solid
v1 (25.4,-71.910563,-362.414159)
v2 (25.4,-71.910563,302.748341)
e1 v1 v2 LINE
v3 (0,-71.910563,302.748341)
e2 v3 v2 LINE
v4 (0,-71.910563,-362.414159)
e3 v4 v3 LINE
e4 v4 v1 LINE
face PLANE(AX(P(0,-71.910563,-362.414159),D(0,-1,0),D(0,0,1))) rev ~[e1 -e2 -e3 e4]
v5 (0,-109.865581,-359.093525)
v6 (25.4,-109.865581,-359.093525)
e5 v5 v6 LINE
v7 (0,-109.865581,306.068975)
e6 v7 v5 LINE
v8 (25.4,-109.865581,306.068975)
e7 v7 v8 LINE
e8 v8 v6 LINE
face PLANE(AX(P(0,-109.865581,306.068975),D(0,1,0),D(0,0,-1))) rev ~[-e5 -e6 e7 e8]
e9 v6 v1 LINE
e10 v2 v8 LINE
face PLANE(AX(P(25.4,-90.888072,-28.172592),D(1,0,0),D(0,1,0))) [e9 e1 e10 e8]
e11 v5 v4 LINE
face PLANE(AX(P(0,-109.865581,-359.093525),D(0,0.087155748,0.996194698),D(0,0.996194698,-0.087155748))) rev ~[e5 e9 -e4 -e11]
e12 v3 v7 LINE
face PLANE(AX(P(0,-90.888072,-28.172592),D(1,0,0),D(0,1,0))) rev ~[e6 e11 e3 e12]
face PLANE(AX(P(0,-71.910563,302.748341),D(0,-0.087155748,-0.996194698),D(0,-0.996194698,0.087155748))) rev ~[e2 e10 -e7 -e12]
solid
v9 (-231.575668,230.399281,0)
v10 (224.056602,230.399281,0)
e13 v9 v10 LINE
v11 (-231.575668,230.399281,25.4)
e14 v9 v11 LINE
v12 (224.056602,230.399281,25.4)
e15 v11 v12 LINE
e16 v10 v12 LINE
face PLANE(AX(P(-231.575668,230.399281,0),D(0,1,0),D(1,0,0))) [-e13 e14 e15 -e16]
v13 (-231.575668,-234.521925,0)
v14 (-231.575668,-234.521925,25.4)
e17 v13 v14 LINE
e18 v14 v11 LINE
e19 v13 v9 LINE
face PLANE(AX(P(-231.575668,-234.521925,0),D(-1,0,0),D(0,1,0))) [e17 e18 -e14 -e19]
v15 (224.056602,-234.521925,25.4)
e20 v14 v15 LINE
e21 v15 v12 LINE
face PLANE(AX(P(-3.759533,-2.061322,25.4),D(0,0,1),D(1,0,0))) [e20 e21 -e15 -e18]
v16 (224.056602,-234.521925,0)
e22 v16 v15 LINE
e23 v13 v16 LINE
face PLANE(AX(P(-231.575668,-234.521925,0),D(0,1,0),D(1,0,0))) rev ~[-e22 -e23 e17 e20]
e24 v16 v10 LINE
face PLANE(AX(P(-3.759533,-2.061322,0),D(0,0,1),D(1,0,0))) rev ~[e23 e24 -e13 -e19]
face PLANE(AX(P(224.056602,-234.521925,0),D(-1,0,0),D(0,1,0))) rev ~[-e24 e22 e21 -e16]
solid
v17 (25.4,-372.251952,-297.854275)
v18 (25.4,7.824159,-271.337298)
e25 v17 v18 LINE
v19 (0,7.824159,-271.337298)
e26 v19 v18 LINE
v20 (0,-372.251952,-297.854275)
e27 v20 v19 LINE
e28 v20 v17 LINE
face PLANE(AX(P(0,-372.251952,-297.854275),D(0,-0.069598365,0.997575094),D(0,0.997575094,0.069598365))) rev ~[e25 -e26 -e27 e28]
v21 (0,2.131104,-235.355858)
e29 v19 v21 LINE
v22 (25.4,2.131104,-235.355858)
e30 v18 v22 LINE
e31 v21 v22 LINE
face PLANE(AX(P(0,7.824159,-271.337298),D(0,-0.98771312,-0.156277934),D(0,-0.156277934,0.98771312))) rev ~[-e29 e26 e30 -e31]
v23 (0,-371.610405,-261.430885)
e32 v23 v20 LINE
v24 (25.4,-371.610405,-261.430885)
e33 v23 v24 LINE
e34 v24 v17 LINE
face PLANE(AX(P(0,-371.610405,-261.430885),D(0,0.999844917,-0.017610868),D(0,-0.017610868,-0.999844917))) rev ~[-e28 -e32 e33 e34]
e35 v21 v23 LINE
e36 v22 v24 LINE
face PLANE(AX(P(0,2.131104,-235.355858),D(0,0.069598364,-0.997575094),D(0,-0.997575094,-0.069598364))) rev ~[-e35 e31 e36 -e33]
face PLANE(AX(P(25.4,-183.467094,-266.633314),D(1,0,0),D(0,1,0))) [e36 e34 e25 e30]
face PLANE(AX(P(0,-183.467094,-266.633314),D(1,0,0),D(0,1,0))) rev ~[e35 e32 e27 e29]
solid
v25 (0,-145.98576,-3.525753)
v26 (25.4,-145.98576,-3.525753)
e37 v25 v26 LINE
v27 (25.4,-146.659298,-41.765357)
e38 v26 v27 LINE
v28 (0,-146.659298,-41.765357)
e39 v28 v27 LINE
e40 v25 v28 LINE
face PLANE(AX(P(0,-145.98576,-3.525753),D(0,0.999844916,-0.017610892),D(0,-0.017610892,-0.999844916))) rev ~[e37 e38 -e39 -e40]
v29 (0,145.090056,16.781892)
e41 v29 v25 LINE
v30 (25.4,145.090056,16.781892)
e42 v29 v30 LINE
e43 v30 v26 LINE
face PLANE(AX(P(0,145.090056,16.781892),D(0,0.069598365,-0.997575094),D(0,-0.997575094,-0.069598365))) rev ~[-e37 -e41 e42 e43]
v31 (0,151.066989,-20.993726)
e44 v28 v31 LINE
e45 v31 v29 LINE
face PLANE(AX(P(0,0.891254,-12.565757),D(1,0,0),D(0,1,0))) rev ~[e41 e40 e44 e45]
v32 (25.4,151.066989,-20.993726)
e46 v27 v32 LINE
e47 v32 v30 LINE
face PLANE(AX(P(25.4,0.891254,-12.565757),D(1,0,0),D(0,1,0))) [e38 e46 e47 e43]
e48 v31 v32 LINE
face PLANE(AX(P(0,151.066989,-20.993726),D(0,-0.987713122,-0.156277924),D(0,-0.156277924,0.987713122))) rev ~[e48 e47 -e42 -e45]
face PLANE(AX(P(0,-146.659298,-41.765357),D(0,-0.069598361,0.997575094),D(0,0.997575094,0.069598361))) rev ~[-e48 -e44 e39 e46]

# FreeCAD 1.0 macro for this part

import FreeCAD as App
import Part
import Sketcher

V = App.Vector
Q = App.Units.Quantity

doc = App.newDocument("Part")
body = doc.addObject("PartDesign::Body", "Body")

# Sketch on YZ plane
sketch1 = doc.addObject("Sketcher::SketchObject", "Sketch")
body.addObject(sketch1)
sketch1.AttachmentSupport = (doc.YZ_Plane, [""])
sketch1.MapMode = "FlatFace"
sketch1.addGeometry([
    Part.LineSegment(V(-72, 303, 0), V(-110, 306, 0)),
    Part.LineSegment(V(-110, 306, 0), V(-110, -359, 0)),
    Part.LineSegment(V(-110, -359, 0), V(-72, -362, 0)),
    Part.LineSegment(V(-72, -362, 0), V(-72, 303, 0)),
], False)
sketch1.addConstraint([
    Sketcher.Constraint("Coincident", 0, 2, 1, 1),
    Sketcher.Constraint("Coincident", 1, 2, 2, 1),
    Sketcher.Constraint("Coincident", 2, 2, 3, 1),
    Sketcher.Constraint("Coincident", 3, 2, 0, 1),
    Sketcher.Constraint("Vertical", 1),
    Sketcher.Constraint("Vertical", 3),
    Sketcher.Constraint("Parallel", 0, 2),
    Sketcher.Constraint("Angle", 0, Q("175 deg")),
    Sketcher.Constraint("Distance", 0, Q("1.5 in")),
    Sketcher.Constraint("DistanceY", 1, 2, 1, 1, Q("26.1875 in")),
    Sketcher.Constraint("DistanceX", 0, 2, -1, 1, Q("109.865581 mm")),
    Sketcher.Constraint("DistanceY", 2, 2, -1, 1, Q("362.414159 mm")),
])
pad1 = doc.addObject("PartDesign::Pad", "Pad")
body.addObject(pad1)
pad1.Profile = sketch1
pad1.Length = Q("1 in")
body2 = doc.addObject("PartDesign::Body", "Body001")

# Sketch on XY plane
sketch2 = doc.addObject("Sketcher::SketchObject", "Sketch001")
body2.addObject(sketch2)
sketch2.AttachmentSupport = (doc.getObject("XY_Plane001"), [""])
sketch2.MapMode = "FlatFace"
sketch2.addGeometry([
    Part.LineSegment(V(-232, 230, 0), V(-232, -235, 0)),
    Part.LineSegment(V(-232, -235, 0), V(224, -235, 0)),
    Part.LineSegment(V(224, -235, 0), V(224, 230, 0)),
    Part.LineSegment(V(224, 230, 0), V(-232, 230, 0)),
], False)
sketch2.addConstraint([
    Sketcher.Constraint("Coincident", 0, 2, 1, 1),
    Sketcher.Constraint("Coincident", 1, 2, 2, 1),
    Sketcher.Constraint("Coincident", 2, 2, 3, 1),
    Sketcher.Constraint("Coincident", 3, 2, 0, 1),
    Sketcher.Constraint("Vertical", 0),
    Sketcher.Constraint("Horizontal", 1),
    Sketcher.Constraint("Vertical", 2),
    Sketcher.Constraint("Horizontal", 3),
    Sketcher.Constraint("DistanceX", 1, 1, 1, 2, Q("455.63227 mm")),
    Sketcher.Constraint("DistanceX", -1, 1, 1, 2, Q("224.056602 mm")),
    Sketcher.Constraint("DistanceY", 0, 2, 0, 1, Q("464.921206 mm")),
    Sketcher.Constraint("DistanceY", -1, 1, 2, 2, Q("230.399281 mm")),
])
pad2 = doc.addObject("PartDesign::Pad", "Pad001")
body2.addObject(pad2)
pad2.Profile = sketch2
pad2.Length = Q("1 in")
body3 = doc.addObject("PartDesign::Body", "Body002")

# Sketch on YZ plane
sketch3 = doc.addObject("Sketcher::SketchObject", "Sketch002")
body3.addObject(sketch3)
sketch3.AttachmentSupport = (doc.getObject("YZ_Plane002"), [""])
sketch3.MapMode = "FlatFace"
sketch3.addGeometry([
    Part.LineSegment(V(8, -271, 0), V(2, -235, 0)),
    Part.LineSegment(V(2, -235, 0), V(-372, -261, 0)),
    Part.LineSegment(V(-372, -261, 0), V(-372, -298, 0)),
    Part.LineSegment(V(-372, -298, 0), V(8, -271, 0)),
], False)
sketch3.addConstraint([
    Sketcher.Constraint("Coincident", 0, 2, 1, 1),
    Sketcher.Constraint("Coincident", 1, 2, 2, 1),
    Sketcher.Constraint("Coincident", 2, 2, 3, 1),
    Sketcher.Constraint("Coincident", 3, 2, 0, 1),
    Sketcher.Constraint("Parallel", 1, 3),
    Sketcher.Constraint("Equal", 0, 2),
    Sketcher.Constraint("Distance", 3, Q("15 in")),
    Sketcher.Constraint("Distance", 1, Q("14.75 in")),
    Sketcher.Constraint("Distance", 0, Q("36.429039 mm")),
    Sketcher.Constraint("DistanceY", 0, 2, -1, 1, Q("235.355858 mm")),
    Sketcher.Constraint("DistanceX", 2, 2, -1, 1, Q("372.251952 mm")),
    Sketcher.Constraint("DistanceX", -1, 1, 3, 2, Q("7.824159 mm")),
])
pad3 = doc.addObject("PartDesign::Pad", "Pad002")
body3.addObject(pad3)
pad3.Profile = sketch3
pad3.Length = Q("1 in")
body4 = doc.addObject("PartDesign::Body", "Body003")

# Sketch on YZ plane
sketch4 = doc.addObject("Sketcher::SketchObject", "Sketch003")
body4.addObject(sketch4)
sketch4.AttachmentSupport = (doc.getObject("YZ_Plane003"), [""])
sketch4.MapMode = "FlatFace"
sketch4.addGeometry([
    Part.LineSegment(V(151, -21, 0), V(145, 17, 0)),
    Part.LineSegment(V(145, 17, 0), V(-146, -4, 0)),
    Part.LineSegment(V(-146, -4, 0), V(-147, -42, 0)),
    Part.LineSegment(V(-147, -42, 0), V(151, -21, 0)),
], False)
sketch4.addConstraint([
    Sketcher.Constraint("Coincident", 0, 2, 1, 1),
    Sketcher.Constraint("Coincident", 1, 2, 2, 1),
    Sketcher.Constraint("Coincident", 2, 2, 3, 1),
    Sketcher.Constraint("Coincident", 3, 2, 0, 1),
    Sketcher.Constraint("Parallel", 1, 3),
    Sketcher.Constraint("Equal", 0, 2),
    Sketcher.Constraint("Distance", 3, Q("11.75 in")),
    Sketcher.Constraint("DistanceX", 2, 2, -1, 1, Q("146.659298 mm")),
    Sketcher.Constraint("DistanceY", -1, 1, 0, 2, Q("16.781892 mm")),
    Sketcher.Constraint("DistanceX", 1, 2, -1, 1, Q("145.98576 mm")),
    Sketcher.Constraint("DistanceX", -1, 1, 3, 2, Q("151.066989 mm")),
    Sketcher.Constraint("DistanceY", 2, 2, 0, 2, Q("58.547249 mm")),
])
pad4 = doc.addObject("PartDesign::Pad", "Pad003")
body4.addObject(pad4)
pad4.Profile = sketch4
pad4.Length = Q("1 in")

doc.recompute()
